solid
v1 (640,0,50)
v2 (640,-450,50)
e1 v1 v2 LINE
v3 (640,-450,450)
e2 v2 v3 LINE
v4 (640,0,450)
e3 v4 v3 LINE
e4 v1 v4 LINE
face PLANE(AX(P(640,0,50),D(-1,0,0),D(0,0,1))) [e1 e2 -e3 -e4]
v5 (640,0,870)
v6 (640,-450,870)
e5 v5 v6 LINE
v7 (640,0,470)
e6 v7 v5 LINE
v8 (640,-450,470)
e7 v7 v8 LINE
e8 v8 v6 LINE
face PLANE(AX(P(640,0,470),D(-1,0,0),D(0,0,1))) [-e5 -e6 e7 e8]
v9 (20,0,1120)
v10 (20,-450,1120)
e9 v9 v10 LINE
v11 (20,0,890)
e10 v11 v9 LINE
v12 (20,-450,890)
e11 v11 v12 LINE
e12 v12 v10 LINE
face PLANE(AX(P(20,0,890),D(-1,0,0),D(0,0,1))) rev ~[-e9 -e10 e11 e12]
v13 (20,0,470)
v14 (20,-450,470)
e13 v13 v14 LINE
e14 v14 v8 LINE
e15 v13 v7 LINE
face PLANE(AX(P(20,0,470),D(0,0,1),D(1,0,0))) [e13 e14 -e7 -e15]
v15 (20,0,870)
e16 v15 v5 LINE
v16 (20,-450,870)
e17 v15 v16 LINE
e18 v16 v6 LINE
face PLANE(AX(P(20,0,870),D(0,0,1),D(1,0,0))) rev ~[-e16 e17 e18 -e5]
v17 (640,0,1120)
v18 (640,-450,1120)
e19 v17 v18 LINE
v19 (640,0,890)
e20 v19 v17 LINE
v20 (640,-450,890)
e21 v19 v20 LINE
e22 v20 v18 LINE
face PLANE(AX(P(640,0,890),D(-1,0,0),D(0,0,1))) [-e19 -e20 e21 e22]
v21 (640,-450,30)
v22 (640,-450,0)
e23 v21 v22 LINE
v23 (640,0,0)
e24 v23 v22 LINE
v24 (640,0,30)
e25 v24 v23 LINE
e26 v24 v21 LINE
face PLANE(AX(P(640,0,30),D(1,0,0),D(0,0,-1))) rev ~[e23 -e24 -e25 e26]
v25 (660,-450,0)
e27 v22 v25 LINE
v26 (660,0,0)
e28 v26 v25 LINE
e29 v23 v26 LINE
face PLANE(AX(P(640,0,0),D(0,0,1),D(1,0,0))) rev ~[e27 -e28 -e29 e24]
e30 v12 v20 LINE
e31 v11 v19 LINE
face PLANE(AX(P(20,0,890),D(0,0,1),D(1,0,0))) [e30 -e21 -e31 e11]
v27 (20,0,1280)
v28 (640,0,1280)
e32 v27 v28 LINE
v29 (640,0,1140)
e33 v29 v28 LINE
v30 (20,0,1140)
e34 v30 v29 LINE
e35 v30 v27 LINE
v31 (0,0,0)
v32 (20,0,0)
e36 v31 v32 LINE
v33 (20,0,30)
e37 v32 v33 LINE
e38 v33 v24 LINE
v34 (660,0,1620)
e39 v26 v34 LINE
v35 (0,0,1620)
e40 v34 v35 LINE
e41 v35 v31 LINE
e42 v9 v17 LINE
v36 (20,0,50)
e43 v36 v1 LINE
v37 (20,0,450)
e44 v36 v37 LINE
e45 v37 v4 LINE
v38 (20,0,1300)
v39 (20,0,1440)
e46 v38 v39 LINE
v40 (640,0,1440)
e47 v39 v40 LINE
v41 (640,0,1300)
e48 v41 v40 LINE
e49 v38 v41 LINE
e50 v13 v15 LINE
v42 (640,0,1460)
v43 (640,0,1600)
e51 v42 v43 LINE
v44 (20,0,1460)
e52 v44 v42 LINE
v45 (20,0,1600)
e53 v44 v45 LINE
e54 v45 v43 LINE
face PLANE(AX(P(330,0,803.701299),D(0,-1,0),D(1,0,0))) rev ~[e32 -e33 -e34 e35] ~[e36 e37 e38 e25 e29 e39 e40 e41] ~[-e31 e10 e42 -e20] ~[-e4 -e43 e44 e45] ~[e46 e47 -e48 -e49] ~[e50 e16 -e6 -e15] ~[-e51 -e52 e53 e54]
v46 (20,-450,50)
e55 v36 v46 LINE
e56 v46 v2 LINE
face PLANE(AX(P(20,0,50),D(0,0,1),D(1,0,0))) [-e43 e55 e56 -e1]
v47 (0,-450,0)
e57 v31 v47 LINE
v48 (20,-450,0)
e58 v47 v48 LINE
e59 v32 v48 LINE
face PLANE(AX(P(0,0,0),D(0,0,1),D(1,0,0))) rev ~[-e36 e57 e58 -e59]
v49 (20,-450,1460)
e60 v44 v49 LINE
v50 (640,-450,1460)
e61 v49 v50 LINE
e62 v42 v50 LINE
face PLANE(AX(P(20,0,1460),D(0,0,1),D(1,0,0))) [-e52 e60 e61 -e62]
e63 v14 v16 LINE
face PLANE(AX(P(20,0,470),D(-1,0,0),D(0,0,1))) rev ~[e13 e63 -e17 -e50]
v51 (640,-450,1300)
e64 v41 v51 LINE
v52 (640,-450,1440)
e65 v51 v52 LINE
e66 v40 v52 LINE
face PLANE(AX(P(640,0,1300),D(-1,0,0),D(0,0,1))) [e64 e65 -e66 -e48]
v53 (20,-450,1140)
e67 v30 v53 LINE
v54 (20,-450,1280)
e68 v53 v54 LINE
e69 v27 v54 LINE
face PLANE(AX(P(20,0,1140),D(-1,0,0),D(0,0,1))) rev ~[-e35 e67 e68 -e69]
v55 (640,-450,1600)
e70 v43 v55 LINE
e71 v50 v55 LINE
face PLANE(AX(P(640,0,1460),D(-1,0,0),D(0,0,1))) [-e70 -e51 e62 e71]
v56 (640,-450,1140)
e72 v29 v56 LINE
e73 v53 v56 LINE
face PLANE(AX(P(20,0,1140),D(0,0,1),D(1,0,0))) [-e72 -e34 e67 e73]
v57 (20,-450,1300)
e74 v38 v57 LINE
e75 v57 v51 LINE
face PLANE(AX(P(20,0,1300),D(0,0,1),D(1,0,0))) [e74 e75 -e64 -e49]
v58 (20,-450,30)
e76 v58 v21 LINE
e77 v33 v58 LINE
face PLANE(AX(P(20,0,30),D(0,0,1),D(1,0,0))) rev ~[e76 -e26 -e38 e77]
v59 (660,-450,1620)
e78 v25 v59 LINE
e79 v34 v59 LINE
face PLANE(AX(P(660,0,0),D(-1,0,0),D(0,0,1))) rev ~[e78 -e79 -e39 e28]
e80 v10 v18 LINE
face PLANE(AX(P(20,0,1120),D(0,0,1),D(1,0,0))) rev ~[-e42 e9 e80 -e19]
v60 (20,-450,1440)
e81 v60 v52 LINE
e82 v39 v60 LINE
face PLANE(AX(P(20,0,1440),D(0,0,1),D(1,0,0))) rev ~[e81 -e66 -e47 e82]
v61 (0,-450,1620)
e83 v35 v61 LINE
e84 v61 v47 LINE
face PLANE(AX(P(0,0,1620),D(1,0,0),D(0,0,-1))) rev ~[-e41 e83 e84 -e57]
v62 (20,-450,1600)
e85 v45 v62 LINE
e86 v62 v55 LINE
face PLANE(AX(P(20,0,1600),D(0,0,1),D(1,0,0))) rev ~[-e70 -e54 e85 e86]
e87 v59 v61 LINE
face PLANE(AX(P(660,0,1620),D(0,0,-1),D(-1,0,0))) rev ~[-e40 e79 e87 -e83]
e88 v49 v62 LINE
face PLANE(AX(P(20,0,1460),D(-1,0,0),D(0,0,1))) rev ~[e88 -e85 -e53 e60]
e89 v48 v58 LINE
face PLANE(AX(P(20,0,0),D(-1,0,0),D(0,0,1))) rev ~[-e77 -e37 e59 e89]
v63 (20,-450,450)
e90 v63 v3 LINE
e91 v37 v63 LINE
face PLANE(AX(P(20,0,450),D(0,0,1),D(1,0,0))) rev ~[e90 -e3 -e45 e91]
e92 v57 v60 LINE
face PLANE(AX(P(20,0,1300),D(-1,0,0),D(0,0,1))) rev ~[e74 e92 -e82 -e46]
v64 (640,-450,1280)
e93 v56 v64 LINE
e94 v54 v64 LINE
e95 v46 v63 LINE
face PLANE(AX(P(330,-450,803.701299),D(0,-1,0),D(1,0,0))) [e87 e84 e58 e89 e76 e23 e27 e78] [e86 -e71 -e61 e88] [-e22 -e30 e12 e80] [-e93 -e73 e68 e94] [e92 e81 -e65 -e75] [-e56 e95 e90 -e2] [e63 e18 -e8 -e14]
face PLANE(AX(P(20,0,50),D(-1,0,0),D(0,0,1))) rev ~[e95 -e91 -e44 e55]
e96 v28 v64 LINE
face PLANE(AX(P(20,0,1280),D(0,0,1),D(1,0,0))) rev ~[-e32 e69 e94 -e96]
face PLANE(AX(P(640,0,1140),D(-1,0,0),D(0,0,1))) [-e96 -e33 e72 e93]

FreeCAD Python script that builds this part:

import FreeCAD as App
import Part
import Sketcher

V = App.Vector


def add_polygon(sketch, points):
    """Adds a closed chain of lines whose ends are joined by coincident constraints."""
    first, n = sketch.GeometryCount, len(points)
    for a, b in zip(points, points[1:] + points[:1]):
        sketch.addGeometry(Part.LineSegment(App.Vector(*a, 0), App.Vector(*b, 0)), False)
    for i in range(n):
        sketch.addConstraint(Sketcher.Constraint("Coincident", first + i, 2, first + (i + 1) % n, 1))

doc = App.newDocument("Part")
body = doc.addObject("PartDesign::Body", "Body")

# Sketch on XZ plane
sketch1 = doc.addObject("Sketcher::SketchObject", "Sketch")
body.addObject(sketch1)
sketch1.AttachmentSupport = (doc.XZ_Plane, [""])
sketch1.MapMode = "FlatFace"
add_polygon(sketch1, [(0, 1620), (0, 0), (20, 0), (20, 30), (640, 30), (640, 0), (660, 0), (660, 1620)])  # lines 0-7
add_polygon(sketch1, [(640, 50), (20, 50), (20, 450), (640, 450)])  # lines 8-11
add_polygon(sketch1, [(640, 470), (20, 470), (20, 870), (640, 870)])  # lines 12-15
add_polygon(sketch1, [(640, 890), (20, 890), (20, 1120), (640, 1120)])  # lines 16-19
add_polygon(sketch1, [(640, 1140), (20, 1140), (20, 1280), (640, 1280)])  # lines 20-23
add_polygon(sketch1, [(640, 1300), (20, 1300), (20, 1440), (640, 1440)])  # lines 24-27
add_polygon(sketch1, [(640, 1460), (20, 1460), (20, 1600), (640, 1600)])  # lines 28-31
sketch1.addConstraint(Sketcher.Constraint("Vertical", 0))
sketch1.addConstraint(Sketcher.Constraint("Horizontal", 1))
sketch1.addConstraint(Sketcher.Constraint("Vertical", 2))
sketch1.addConstraint(Sketcher.Constraint("Horizontal", 3))
sketch1.addConstraint(Sketcher.Constraint("Vertical", 4))
sketch1.addConstraint(Sketcher.Constraint("Horizontal", 5))
sketch1.addConstraint(Sketcher.Constraint("Vertical", 6))
sketch1.addConstraint(Sketcher.Constraint("Horizontal", 7))
sketch1.addConstraint(Sketcher.Constraint("Horizontal", 8))
sketch1.addConstraint(Sketcher.Constraint("Vertical", 9))
sketch1.addConstraint(Sketcher.Constraint("Horizontal", 10))
sketch1.addConstraint(Sketcher.Constraint("Vertical", 11))
sketch1.addConstraint(Sketcher.Constraint("Horizontal", 12))
sketch1.addConstraint(Sketcher.Constraint("Vertical", 13))
sketch1.addConstraint(Sketcher.Constraint("Horizontal", 14))
sketch1.addConstraint(Sketcher.Constraint("Vertical", 15))
sketch1.addConstraint(Sketcher.Constraint("Horizontal", 16))
sketch1.addConstraint(Sketcher.Constraint("Vertical", 17))
sketch1.addConstraint(Sketcher.Constraint("Horizontal", 18))
sketch1.addConstraint(Sketcher.Constraint("Vertical", 19))
sketch1.addConstraint(Sketcher.Constraint("Horizontal", 20))
sketch1.addConstraint(Sketcher.Constraint("Vertical", 21))
sketch1.addConstraint(Sketcher.Constraint("Horizontal", 22))
sketch1.addConstraint(Sketcher.Constraint("Vertical", 23))
sketch1.addConstraint(Sketcher.Constraint("Horizontal", 24))
sketch1.addConstraint(Sketcher.Constraint("Vertical", 25))
sketch1.addConstraint(Sketcher.Constraint("Horizontal", 26))
sketch1.addConstraint(Sketcher.Constraint("Vertical", 27))
sketch1.addConstraint(Sketcher.Constraint("Horizontal", 28))
sketch1.addConstraint(Sketcher.Constraint("Vertical", 29))
sketch1.addConstraint(Sketcher.Constraint("Horizontal", 30))
sketch1.addConstraint(Sketcher.Constraint("Vertical", 31))
sketch1.addConstraint(Sketcher.Constraint("Coincident", 0, 2, -1, 1))
sketch1.addConstraint(Sketcher.Constraint("PointOnObject", 4, 2, -1))
sketch1.addConstraint(Sketcher.Constraint("Vertical", 2, 2, 8, 2))
sketch1.addConstraint(Sketcher.Constraint("Vertical", 4, 2, 10, 2))
sketch1.addConstraint(Sketcher.Constraint("Vertical", 9, 2, 12, 2))
sketch1.addConstraint(Sketcher.Constraint("Vertical", 11, 2, 14, 2))
sketch1.addConstraint(Sketcher.Constraint("Vertical", 13, 2, 16, 2))
sketch1.addConstraint(Sketcher.Constraint("Vertical", 15, 2, 18, 2))
sketch1.addConstraint(Sketcher.Constraint("Vertical", 17, 2, 20, 2))
sketch1.addConstraint(Sketcher.Constraint("Vertical", 19, 2, 22, 2))
sketch1.addConstraint(Sketcher.Constraint("Vertical", 21, 2, 24, 2))
sketch1.addConstraint(Sketcher.Constraint("Vertical", 23, 2, 26, 2))
sketch1.addConstraint(Sketcher.Constraint("Vertical", 25, 2, 28, 2))
sketch1.addConstraint(Sketcher.Constraint("Vertical", 27, 2, 30, 2))
sketch1.addConstraint(Sketcher.Constraint("Equal", 1, 5))
sketch1.addConstraint(Sketcher.Constraint("Equal", 11, 13))
sketch1.addConstraint(Sketcher.Constraint("Equal", 23, 25))
sketch1.addConstraint(Sketcher.Constraint("Equal", 27, 29))
sketch1.addConstraint(Sketcher.Constraint("DistanceX", 1, 1, 1, 2, 20.0))
sketch1.addConstraint(Sketcher.Constraint("DistanceX", 3, 1, 3, 2, 620.0))
sketch1.addConstraint(Sketcher.Constraint("DistanceY", 0, 2, 0, 1, 1620.0))
sketch1.addConstraint(Sketcher.Constraint("DistanceY", 2, 1, 2, 2, 30.0))
sketch1.addConstraint(Sketcher.Constraint("DistanceY", 9, 1, 9, 2, 400.0))
sketch1.addConstraint(Sketcher.Constraint("DistanceY", 17, 1, 17, 2, 230.0))
sketch1.addConstraint(Sketcher.Constraint("DistanceY", 21, 1, 21, 2, 140.0))
sketch1.addConstraint(Sketcher.Constraint("DistanceY", -1, 1, 8, 2, 50.0))
sketch1.addConstraint(Sketcher.Constraint("DistanceY", -1, 1, 12, 2, 470.0))
sketch1.addConstraint(Sketcher.Constraint("DistanceY", -1, 1, 16, 2, 890.0))
sketch1.addConstraint(Sketcher.Constraint("DistanceY", -1, 1, 20, 2, 1140.0))
sketch1.addConstraint(Sketcher.Constraint("DistanceY", -1, 1, 24, 2, 1300.0))
sketch1.addConstraint(Sketcher.Constraint("DistanceY", -1, 1, 28, 2, 1460.0))
pad1 = doc.addObject("PartDesign::Pad", "Pad")
body.addObject(pad1)
pad1.Profile = sketch1
pad1.Length = 450

doc.recompute()
